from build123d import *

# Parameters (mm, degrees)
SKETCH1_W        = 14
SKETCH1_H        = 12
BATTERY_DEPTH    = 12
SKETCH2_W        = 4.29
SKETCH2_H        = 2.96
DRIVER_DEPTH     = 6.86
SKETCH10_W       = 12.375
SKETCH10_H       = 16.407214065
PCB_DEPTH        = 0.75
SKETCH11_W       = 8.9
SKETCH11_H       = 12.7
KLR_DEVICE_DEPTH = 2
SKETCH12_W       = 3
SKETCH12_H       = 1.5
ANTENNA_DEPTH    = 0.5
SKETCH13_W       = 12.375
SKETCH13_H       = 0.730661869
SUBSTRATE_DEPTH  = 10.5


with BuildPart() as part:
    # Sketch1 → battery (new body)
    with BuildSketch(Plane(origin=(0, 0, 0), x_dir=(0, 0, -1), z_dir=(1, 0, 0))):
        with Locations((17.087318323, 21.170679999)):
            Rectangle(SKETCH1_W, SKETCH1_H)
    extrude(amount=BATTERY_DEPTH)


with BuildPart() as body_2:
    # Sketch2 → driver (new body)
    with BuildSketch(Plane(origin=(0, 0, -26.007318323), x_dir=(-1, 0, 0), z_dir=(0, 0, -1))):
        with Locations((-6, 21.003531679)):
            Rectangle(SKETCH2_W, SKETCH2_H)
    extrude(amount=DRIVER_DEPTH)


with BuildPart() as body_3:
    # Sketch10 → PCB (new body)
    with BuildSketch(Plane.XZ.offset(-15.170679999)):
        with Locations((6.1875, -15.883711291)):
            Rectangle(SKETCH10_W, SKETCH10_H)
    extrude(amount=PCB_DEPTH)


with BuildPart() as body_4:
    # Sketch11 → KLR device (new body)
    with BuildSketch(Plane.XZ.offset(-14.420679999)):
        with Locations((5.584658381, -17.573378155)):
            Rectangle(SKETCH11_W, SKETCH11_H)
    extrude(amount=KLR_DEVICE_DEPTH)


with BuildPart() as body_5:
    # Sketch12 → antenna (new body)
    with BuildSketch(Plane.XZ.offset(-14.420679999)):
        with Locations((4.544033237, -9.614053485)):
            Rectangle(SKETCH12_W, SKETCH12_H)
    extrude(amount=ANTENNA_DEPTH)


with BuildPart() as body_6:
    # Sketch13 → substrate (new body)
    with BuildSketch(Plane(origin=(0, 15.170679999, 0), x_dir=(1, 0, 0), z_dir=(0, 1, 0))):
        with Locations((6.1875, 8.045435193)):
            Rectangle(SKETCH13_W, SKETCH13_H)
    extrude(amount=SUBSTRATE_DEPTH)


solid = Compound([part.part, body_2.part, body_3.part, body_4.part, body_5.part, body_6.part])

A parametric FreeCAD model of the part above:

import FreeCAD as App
import Part
import Sketcher

doc = App.newDocument("Part")
body = doc.addObject("PartDesign::Body", "Body")

# Sketch on YZ plane
sketch1 = doc.addObject("Sketcher::SketchObject", "Sketch")
body.addObject(sketch1)
sketch1.AttachmentSupport = (doc.YZ_Plane, [""])
sketch1.MapMode = "FlatFace"
sketch1.addGeometry(Part.LineSegment(App.Vector(27, -10, 0), App.Vector(15, -10, 0)), False)
sketch1.addGeometry(Part.LineSegment(App.Vector(15, -10, 0), App.Vector(15, -24, 0)), False)
sketch1.addGeometry(Part.LineSegment(App.Vector(15, -24, 0), App.Vector(27, -24, 0)), False)
sketch1.addGeometry(Part.LineSegment(App.Vector(27, -24, 0), App.Vector(27, -10, 0)), False)
sketch1.addConstraint(Sketcher.Constraint("Coincident", 0, 2, 1, 1))
sketch1.addConstraint(Sketcher.Constraint("Coincident", 1, 2, 2, 1))
sketch1.addConstraint(Sketcher.Constraint("Coincident", 2, 2, 3, 1))
sketch1.addConstraint(Sketcher.Constraint("Coincident", 3, 2, 0, 1))
sketch1.addConstraint(Sketcher.Constraint("Horizontal", 0))
sketch1.addConstraint(Sketcher.Constraint("Vertical", 1))
sketch1.addConstraint(Sketcher.Constraint("Horizontal", 2))
sketch1.addConstraint(Sketcher.Constraint("Vertical", 3))
sketch1.addConstraint(Sketcher.Constraint("DistanceX", 0, 2, 0, 1, 12.0))
sketch1.addConstraint(Sketcher.Constraint("DistanceY", 1, 2, 1, 1, 14.0))
sketch1.addConstraint(Sketcher.Constraint("DistanceX", -1, 1, 0, 2, 15.17068))
sketch1.addConstraint(Sketcher.Constraint("DistanceY", 0, 2, -1, 1, 10.087318))
pad1 = doc.addObject("PartDesign::Pad", "Pad")
body.addObject(pad1)
pad1.Profile = sketch1
pad1.Length = 12
body2 = doc.addObject("PartDesign::Body", "Body001")

# Sketch on XY plane
sketch2 = doc.addObject("Sketcher::SketchObject", "Sketch001")
body2.addObject(sketch2)
sketch2.AttachmentSupport = (doc.getObject("XY_Plane001"), [""])
sketch2.MapMode = "FlatFace"
sketch2.AttachmentOffset = App.Placement(App.Vector(0, 0, -26.007318), App.Rotation())
sketch2.addGeometry(Part.LineSegment(App.Vector(8.1, 22.5, 0), App.Vector(8.1, 19.5, 0)), False)
sketch2.addGeometry(Part.LineSegment(App.Vector(8.1, 19.5, 0), App.Vector(3.9, 19.5, 0)), False)
sketch2.addGeometry(Part.LineSegment(App.Vector(3.9, 19.5, 0), App.Vector(3.9, 22.5, 0)), False)
sketch2.addGeometry(Part.LineSegment(App.Vector(3.9, 22.5, 0), App.Vector(8.1, 22.5, 0)), False)
sketch2.addConstraint(Sketcher.Constraint("Coincident", 0, 2, 1, 1))
sketch2.addConstraint(Sketcher.Constraint("Coincident", 1, 2, 2, 1))
sketch2.addConstraint(Sketcher.Constraint("Coincident", 2, 2, 3, 1))
sketch2.addConstraint(Sketcher.Constraint("Coincident", 3, 2, 0, 1))
sketch2.addConstraint(Sketcher.Constraint("Vertical", 0))
sketch2.addConstraint(Sketcher.Constraint("Horizontal", 1))
sketch2.addConstraint(Sketcher.Constraint("Vertical", 2))
sketch2.addConstraint(Sketcher.Constraint("Horizontal", 3))
sketch2.addConstraint(Sketcher.Constraint("DistanceX", 1, 2, 1, 1, 4.29))
sketch2.addConstraint(Sketcher.Constraint("DistanceY", 0, 2, 0, 1, 2.96))
sketch2.addConstraint(Sketcher.Constraint("DistanceX", -1, 1, 0, 2, 8.145))
sketch2.addConstraint(Sketcher.Constraint("DistanceY", -1, 1, 0, 2, 19.523532))
pad2 = doc.addObject("PartDesign::Pad", "Pad001")
body2.addObject(pad2)
pad2.Profile = sketch2
pad2.Length = 6.86
pad2.Reversed = True
body3 = doc.addObject("PartDesign::Body", "Body002")

# Sketch on XZ plane
sketch3 = doc.addObject("Sketcher::SketchObject", "Sketch002")
body3.addObject(sketch3)
sketch3.AttachmentSupport = (doc.getObject("XZ_Plane002"), [""])
sketch3.MapMode = "FlatFace"
sketch3.AttachmentOffset = App.Placement(App.Vector(0, 0, -15.17068), App.Rotation())
sketch3.addGeometry(Part.LineSegment(App.Vector(0, -8, 0), App.Vector(0, -24, 0)), False)
sketch3.addGeometry(Part.LineSegment(App.Vector(0, -24, 0), App.Vector(12, -24, 0)), False)
sketch3.addGeometry(Part.LineSegment(App.Vector(12, -24, 0), App.Vector(12, -8, 0)), False)
sketch3.addGeometry(Part.LineSegment(App.Vector(12, -8, 0), App.Vector(0, -8, 0)), False)
sketch3.addConstraint(Sketcher.Constraint("Coincident", 0, 2, 1, 1))
sketch3.addConstraint(Sketcher.Constraint("Coincident", 1, 2, 2, 1))
sketch3.addConstraint(Sketcher.Constraint("Coincident", 2, 2, 3, 1))
sketch3.addConstraint(Sketcher.Constraint("Coincident", 3, 2, 0, 1))
sketch3.addConstraint(Sketcher.Constraint("Vertical", 0))
sketch3.addConstraint(Sketcher.Constraint("Horizontal", 1))
sketch3.addConstraint(Sketcher.Constraint("Vertical", 2))
sketch3.addConstraint(Sketcher.Constraint("Horizontal", 3))
sketch3.addConstraint(Sketcher.Constraint("PointOnObject", 0, 2, -2))
sketch3.addConstraint(Sketcher.Constraint("DistanceX", 1, 1, 1, 2, 12.375))
sketch3.addConstraint(Sketcher.Constraint("DistanceY", 0, 2, 0, 1, 16.407214))
sketch3.addConstraint(Sketcher.Constraint("DistanceY", 0, 2, -1, 1, 24.087318))
pad3 = doc.addObject("PartDesign::Pad", "Pad002")
body3.addObject(pad3)
pad3.Profile = sketch3
pad3.Length = 0.75
body4 = doc.addObject("PartDesign::Body", "Body003")

# Sketch on XZ plane
sketch4 = doc.addObject("Sketcher::SketchObject", "Sketch003")
body4.addObject(sketch4)
sketch4.AttachmentSupport = (doc.getObject("XZ_Plane003"), [""])
sketch4.MapMode = "FlatFace"
sketch4.AttachmentOffset = App.Placement(App.Vector(0, 0, -14.42068), App.Rotation())
sketch4.addGeometry(Part.LineSegment(App.Vector(1, -11, 0), App.Vector(1, -24, 0)), False)
sketch4.addGeometry(Part.LineSegment(App.Vector(1, -24, 0), App.Vector(10, -24, 0)), False)
sketch4.addGeometry(Part.LineSegment(App.Vector(10, -24, 0), App.Vector(10, -11, 0)), False)
sketch4.addGeometry(Part.LineSegment(App.Vector(10, -11, 0), App.Vector(1, -11, 0)), False)
sketch4.addConstraint(Sketcher.Constraint("Coincident", 0, 2, 1, 1))
sketch4.addConstraint(Sketcher.Constraint("Coincident", 1, 2, 2, 1))
sketch4.addConstraint(Sketcher.Constraint("Coincident", 2, 2, 3, 1))
sketch4.addConstraint(Sketcher.Constraint("Coincident", 3, 2, 0, 1))
sketch4.addConstraint(Sketcher.Constraint("Vertical", 0))
sketch4.addConstraint(Sketcher.Constraint("Horizontal", 1))
sketch4.addConstraint(Sketcher.Constraint("Vertical", 2))
sketch4.addConstraint(Sketcher.Constraint("Horizontal", 3))
sketch4.addConstraint(Sketcher.Constraint("DistanceX", 1, 1, 1, 2, 8.9))
sketch4.addConstraint(Sketcher.Constraint("DistanceY", 0, 2, 0, 1, 12.7))
sketch4.addConstraint(Sketcher.Constraint("DistanceX", -1, 1, 0, 2, 1.134658))
sketch4.addConstraint(Sketcher.Constraint("DistanceY", 0, 2, -1, 1, 23.923378))
pad4 = doc.addObject("PartDesign::Pad", "Pad003")
body4.addObject(pad4)
pad4.Profile = sketch4
pad4.Length = 2
body5 = doc.addObject("PartDesign::Body", "Body004")

# Sketch on XZ plane
sketch5 = doc.addObject("Sketcher::SketchObject", "Sketch004")
body5.addObject(sketch5)
sketch5.AttachmentSupport = (doc.getObject("XZ_Plane004"), [""])
sketch5.MapMode = "FlatFace"
sketch5.AttachmentOffset = App.Placement(App.Vector(0, 0, -14.42068), App.Rotation())
sketch5.addGeometry(Part.LineSegment(App.Vector(3, -8.9, 0), App.Vector(3, -10.4, 0)), False)
sketch5.addGeometry(Part.LineSegment(App.Vector(3, -10.4, 0), App.Vector(6, -10.4, 0)), False)
sketch5.addGeometry(Part.LineSegment(App.Vector(6, -10.4, 0), App.Vector(6, -8.9, 0)), False)
sketch5.addGeometry(Part.LineSegment(App.Vector(6, -8.9, 0), App.Vector(3, -8.9, 0)), False)
sketch5.addConstraint(Sketcher.Constraint("Coincident", 0, 2, 1, 1))
sketch5.addConstraint(Sketcher.Constraint("Coincident", 1, 2, 2, 1))
sketch5.addConstraint(Sketcher.Constraint("Coincident", 2, 2, 3, 1))
sketch5.addConstraint(Sketcher.Constraint("Coincident", 3, 2, 0, 1))
sketch5.addConstraint(Sketcher.Constraint("Vertical", 0))
sketch5.addConstraint(Sketcher.Constraint("Horizontal", 1))
sketch5.addConstraint(Sketcher.Constraint("Vertical", 2))
sketch5.addConstraint(Sketcher.Constraint("Horizontal", 3))
sketch5.addConstraint(Sketcher.Constraint("DistanceX", 1, 1, 1, 2, 3.0))
sketch5.addConstraint(Sketcher.Constraint("DistanceY", 0, 2, 0, 1, 1.5))
sketch5.addConstraint(Sketcher.Constraint("DistanceX", -1, 1, 0, 2, 3.044033))
sketch5.addConstraint(Sketcher.Constraint("DistanceY", 0, 2, -1, 1, 10.364053))
pad5 = doc.addObject("PartDesign::Pad", "Pad004")
body5.addObject(pad5)
pad5.Profile = sketch5
pad5.Length = 0.5
body6 = doc.addObject("PartDesign::Body", "Body005")

# Sketch on XZ plane
sketch6 = doc.addObject("Sketcher::SketchObject", "Sketch005")
body6.addObject(sketch6)
sketch6.AttachmentSupport = (doc.getObject("XZ_Plane005"), [""])
sketch6.MapMode = "FlatFace"
sketch6.AttachmentOffset = App.Placement(App.Vector(0, 0, -15.17068), App.Rotation())
sketch6.addGeometry(Part.LineSegment(App.Vector(0, -8.4, 0), App.Vector(0, -7.7, 0)), False)
sketch6.addGeometry(Part.LineSegment(App.Vector(0, -7.7, 0), App.Vector(12.4, -7.7, 0)), False)
sketch6.addGeometry(Part.LineSegment(App.Vector(12.4, -7.7, 0), App.Vector(12.4, -8.4, 0)), False)
sketch6.addGeometry(Part.LineSegment(App.Vector(12.4, -8.4, 0), App.Vector(0, -8.4, 0)), False)
sketch6.addConstraint(Sketcher.Constraint("Coincident", 0, 2, 1, 1))
sketch6.addConstraint(Sketcher.Constraint("Coincident", 1, 2, 2, 1))
sketch6.addConstraint(Sketcher.Constraint("Coincident", 2, 2, 3, 1))
sketch6.addConstraint(Sketcher.Constraint("Coincident", 3, 2, 0, 1))
sketch6.addConstraint(Sketcher.Constraint("Vertical", 0))
sketch6.addConstraint(Sketcher.Constraint("Horizontal", 1))
sketch6.addConstraint(Sketcher.Constraint("Vertical", 2))
sketch6.addConstraint(Sketcher.Constraint("Horizontal", 3))
sketch6.addConstraint(Sketcher.Constraint("PointOnObject", 0, 2, -2))
sketch6.addConstraint(Sketcher.Constraint("DistanceX", 1, 1, 1, 2, 12.375))
sketch6.addConstraint(Sketcher.Constraint("DistanceY", 0, 1, 0, 2, 0.730662))
sketch6.addConstraint(Sketcher.Constraint("DistanceY", 0, 2, -1, 1, 7.680104))
pad6 = doc.addObject("PartDesign::Pad", "Pad005")
body6.addObject(pad6)
pad6.Profile = sketch6
pad6.Length = 10.5
pad6.Reversed = True

doc.recompute()
